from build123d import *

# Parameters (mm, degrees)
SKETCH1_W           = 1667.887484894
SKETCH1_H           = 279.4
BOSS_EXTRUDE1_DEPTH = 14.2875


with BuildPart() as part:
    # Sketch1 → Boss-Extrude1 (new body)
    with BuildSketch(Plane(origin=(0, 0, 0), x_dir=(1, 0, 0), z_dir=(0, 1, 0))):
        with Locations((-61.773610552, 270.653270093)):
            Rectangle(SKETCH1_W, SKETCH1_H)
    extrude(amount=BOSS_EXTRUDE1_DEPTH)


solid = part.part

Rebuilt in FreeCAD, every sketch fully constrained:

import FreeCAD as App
import Part
import Sketcher
from FreeCAD import Vector
Q = App.Units.Quantity


def add_polygon(sketch, points):
    """Adds a closed chain of lines whose ends are joined by coincident constraints."""
    first, n = sketch.GeometryCount, len(points)
    for a, b in zip(points, points[1:] + points[:1]):
        sketch.addGeometry(Part.LineSegment(App.Vector(*a, 0), App.Vector(*b, 0)), False)
    for i in range(n):
        sketch.addConstraint(Sketcher.Constraint("Coincident", first + i, 2, first + (i + 1) % n, 1))

doc = App.newDocument("Part")
body = doc.addObject("PartDesign::Body", "Body")

sketch1 = doc.addObject("Sketcher::SketchObject", "Sketch")
body.addObject(sketch1)
sketch1.AttachmentSupport = (doc.XZ_Plane, [""])
sketch1.MapMode = "FlatFace"
add_polygon(sketch1, [(-895.717353, -410.35327), (-895.717353, -130.95327), (772.170132, -130.95327), (772.170132, -410.35327)])
sketch1.addConstraint(Sketcher.Constraint("Vertical", 0))
sketch1.addConstraint(Sketcher.Constraint("Horizontal", 1))
sketch1.addConstraint(Sketcher.Constraint("Vertical", 2))
sketch1.addConstraint(Sketcher.Constraint("Horizontal", 3))
sketch1.addConstraint(Sketcher.Constraint("DistanceY", 0, 1, 0, 2, Q("11 in")))
sketch1.addConstraint(Sketcher.Constraint("DistanceX", 1, 1, 1, 2, Q("1667.887485 mm")))
sketch1.addConstraint(Sketcher.Constraint("DistanceY", 0, 2, -1, 1, Q("130.95327 mm")))
sketch1.addConstraint(Sketcher.Constraint("DistanceX", -1, 1, 1, 2, Q("772.170132 mm")))
pad1 = doc.addObject("PartDesign::Pad", "Pad")
body.addObject(pad1)
pad1.Profile = sketch1
pad1.Length = Q("0.5625 in")
pad1.Reversed = True

doc.recompute()
